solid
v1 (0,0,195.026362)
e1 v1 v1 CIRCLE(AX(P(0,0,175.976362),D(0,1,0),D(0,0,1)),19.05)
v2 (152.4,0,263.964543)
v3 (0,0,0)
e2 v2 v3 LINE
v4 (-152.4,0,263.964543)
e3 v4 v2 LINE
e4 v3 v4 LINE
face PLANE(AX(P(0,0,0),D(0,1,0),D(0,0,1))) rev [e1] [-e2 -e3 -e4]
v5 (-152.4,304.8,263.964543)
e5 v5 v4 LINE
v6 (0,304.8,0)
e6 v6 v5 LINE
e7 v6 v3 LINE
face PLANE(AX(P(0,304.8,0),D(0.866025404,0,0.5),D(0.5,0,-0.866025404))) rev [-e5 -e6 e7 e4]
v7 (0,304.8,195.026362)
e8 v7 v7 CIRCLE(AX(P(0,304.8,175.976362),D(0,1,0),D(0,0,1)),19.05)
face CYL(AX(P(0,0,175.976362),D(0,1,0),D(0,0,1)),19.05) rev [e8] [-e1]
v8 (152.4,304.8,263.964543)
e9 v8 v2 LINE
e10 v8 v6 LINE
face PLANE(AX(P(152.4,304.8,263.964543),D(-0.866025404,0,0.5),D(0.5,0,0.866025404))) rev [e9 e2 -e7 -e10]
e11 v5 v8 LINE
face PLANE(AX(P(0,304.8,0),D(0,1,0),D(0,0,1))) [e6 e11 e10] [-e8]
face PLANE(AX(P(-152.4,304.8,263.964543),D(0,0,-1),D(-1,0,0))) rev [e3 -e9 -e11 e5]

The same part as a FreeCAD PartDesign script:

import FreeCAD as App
import Part
import Sketcher
from FreeCAD import Vector
Q = App.Units.Quantity

doc = App.newDocument("Part")
body = doc.addObject("PartDesign::Body", "Body")

sketch1 = doc.addObject("Sketcher::SketchObject", "Sketch")
body.addObject(sketch1)
sketch1.AttachmentSupport = (doc.XZ_Plane, [""])
sketch1.MapMode = "FlatFace"
sketch1.addGeometry([
    Part.LineSegment(Vector(0, 0, 0), Vector(-152, 264, 0)),
    Part.LineSegment(Vector(-152, 264, 0), Vector(152, 264, 0)),
    Part.LineSegment(Vector(152, 264, 0), Vector(0, 0, 0)),
], False)
sketch1.addConstraint([
    Sketcher.Constraint("Coincident", 0, 2, 1, 1),
    Sketcher.Constraint("Coincident", 1, 2, 2, 1),
    Sketcher.Constraint("Coincident", 2, 2, 0, 1),
    Sketcher.Constraint("Horizontal", 1),
    Sketcher.Constraint("Coincident", 2, 2, -1, 1),
    Sketcher.Constraint("Equal", 0, 2),
    Sketcher.Constraint("DistanceX", 1, 1, 1, 2, Q("12 in")),
    Sketcher.Constraint("Distance", 0, Q("12 in")),
])
pad1 = doc.addObject("PartDesign::Pad", "Pad")
body.addObject(pad1)
pad1.Profile = sketch1
pad1.Length = Q("12 in")
pad1.Reversed = True

sketch2 = doc.addObject("Sketcher::SketchObject", "Sketch001")
body.addObject(sketch2)
sketch2.AttachmentSupport = (doc.XZ_Plane, [""])
sketch2.MapMode = "FlatFace"
sketch2.AttachmentOffset = App.Placement(Vector(0, 0, -12 * 25.4), App.Rotation())
sketch2.addGeometry(Part.Circle(Vector(0, 176, 0), Vector(0, 0, 1), 19), False)
sketch2.addConstraint([
    Sketcher.Constraint("PointOnObject", 0, 3, -2),
    Sketcher.Constraint("Diameter", 0, Q("1.5 in")),
    Sketcher.Constraint("DistanceY", -1, 1, 0, 3, Q("175.976362 mm")),
])
pocket1 = doc.addObject("PartDesign::Pocket", "Pocket")
body.addObject(pocket1)
pocket1.Profile = sketch2
pocket1.Type = "ThroughAll"
pocket1.Reversed = True

doc.recompute()
